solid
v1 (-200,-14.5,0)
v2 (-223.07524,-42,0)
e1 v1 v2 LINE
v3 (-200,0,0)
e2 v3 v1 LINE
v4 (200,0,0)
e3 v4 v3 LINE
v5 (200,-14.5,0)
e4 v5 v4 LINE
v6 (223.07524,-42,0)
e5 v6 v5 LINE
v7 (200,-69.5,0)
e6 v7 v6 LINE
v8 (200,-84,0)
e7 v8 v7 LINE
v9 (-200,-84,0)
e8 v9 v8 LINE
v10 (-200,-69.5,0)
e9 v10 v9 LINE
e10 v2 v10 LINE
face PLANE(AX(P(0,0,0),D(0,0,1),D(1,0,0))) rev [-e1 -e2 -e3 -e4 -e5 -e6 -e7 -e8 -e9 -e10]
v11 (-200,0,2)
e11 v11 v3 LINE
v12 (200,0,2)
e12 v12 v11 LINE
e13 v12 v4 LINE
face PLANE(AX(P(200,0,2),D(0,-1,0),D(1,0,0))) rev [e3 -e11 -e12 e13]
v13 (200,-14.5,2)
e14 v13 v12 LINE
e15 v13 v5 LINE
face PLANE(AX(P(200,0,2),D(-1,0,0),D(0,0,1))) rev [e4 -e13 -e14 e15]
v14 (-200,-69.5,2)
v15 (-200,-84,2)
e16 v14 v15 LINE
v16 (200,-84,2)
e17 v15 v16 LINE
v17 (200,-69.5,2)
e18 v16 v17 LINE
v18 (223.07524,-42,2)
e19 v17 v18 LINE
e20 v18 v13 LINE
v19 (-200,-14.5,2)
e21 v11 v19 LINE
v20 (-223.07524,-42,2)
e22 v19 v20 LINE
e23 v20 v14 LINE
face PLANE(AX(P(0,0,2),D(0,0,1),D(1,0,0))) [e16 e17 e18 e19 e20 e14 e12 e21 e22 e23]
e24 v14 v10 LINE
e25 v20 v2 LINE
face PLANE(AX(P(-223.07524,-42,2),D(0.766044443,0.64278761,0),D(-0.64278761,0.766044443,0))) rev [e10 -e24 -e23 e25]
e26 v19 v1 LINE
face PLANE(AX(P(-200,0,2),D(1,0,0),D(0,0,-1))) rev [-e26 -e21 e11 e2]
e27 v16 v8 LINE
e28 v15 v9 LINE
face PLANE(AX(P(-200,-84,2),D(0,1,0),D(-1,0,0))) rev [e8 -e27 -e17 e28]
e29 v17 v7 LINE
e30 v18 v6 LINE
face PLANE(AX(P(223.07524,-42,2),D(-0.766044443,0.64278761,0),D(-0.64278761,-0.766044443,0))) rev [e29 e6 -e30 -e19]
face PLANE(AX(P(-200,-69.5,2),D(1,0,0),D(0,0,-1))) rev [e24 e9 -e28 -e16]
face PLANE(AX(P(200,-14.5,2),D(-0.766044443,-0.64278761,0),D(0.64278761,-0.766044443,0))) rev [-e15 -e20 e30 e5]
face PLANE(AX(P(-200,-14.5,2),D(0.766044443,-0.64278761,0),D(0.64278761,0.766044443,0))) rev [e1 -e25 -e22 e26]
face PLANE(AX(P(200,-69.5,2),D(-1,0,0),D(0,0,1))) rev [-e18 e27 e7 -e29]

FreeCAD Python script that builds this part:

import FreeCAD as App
import Part
import Sketcher

V = App.Vector
Q = App.Units.Quantity


def add_polygon(sketch, points):
    """Adds a closed chain of lines whose ends are joined by coincident constraints."""
    first, n = sketch.GeometryCount, len(points)
    for a, b in zip(points, points[1:] + points[:1]):
        sketch.addGeometry(Part.LineSegment(App.Vector(*a, 0), App.Vector(*b, 0)), False)
    for i in range(n):
        sketch.addConstraint(Sketcher.Constraint("Coincident", first + i, 2, first + (i + 1) % n, 1))

doc = App.newDocument("Part")
params = doc.addObject("Spreadsheet::Sheet", "Params")
for row, (alias, value) in enumerate([
    ("sketch1_width", "400 mm"),
    ("sketch1_height", "14.5 mm"),
    ("pad1_length", "2 mm"),
], start=1):
    params.set(f"A{row}", alias)
    params.set(f"B{row}", "=" + value)
    params.setAlias(f"B{row}", alias)

body = doc.addObject("PartDesign::Body", "Body")

sketch1 = doc.addObject("Sketcher::SketchObject", "Sketch")
body.addObject(sketch1)
sketch1.AttachmentSupport = (doc.XY_Plane, [""])
sketch1.MapMode = "FlatFace"
add_polygon(sketch1, [(200, 0), (-200, 0), (-200, -14), (-223, -42), (-200, -70), (-200, -84), (200, -84), (200, -70), (223, -42), (200, -14)])
sketch1.addConstraint([
    Sketcher.Constraint("Horizontal", 0),
    Sketcher.Constraint("Vertical", 1),
    Sketcher.Constraint("Vertical", 4),
    Sketcher.Constraint("Horizontal", 5),
    Sketcher.Constraint("Vertical", 6),
    Sketcher.Constraint("Vertical", 9),
    Sketcher.Constraint("Symmetric", 0, 2, 9, 2, -1, 1),
    Sketcher.Constraint("Symmetric", 3, 2, 6, 2, -2),
    Sketcher.Constraint("Symmetric", 2, 2, 7, 2, -2),
    Sketcher.Constraint("Parallel", 2, 7),
    Sketcher.Constraint("Parallel", 3, 8),
    Sketcher.Constraint("Vertical", 1, 2, 3, 2),
    Sketcher.Constraint("Equal", 1, 4),
    Sketcher.Constraint("DistanceX", 0, 2, 0, 1, 400.0),
    Sketcher.Constraint("Angle", 2, Q("-130 deg")),
    Sketcher.Constraint("DistanceY", 1, 2, 1, 1, 14.5),
    Sketcher.Constraint("DistanceY", 2, 2, -1, 1, 42.0),
])
sketch1.setExpression("Constraints[23]", "Params.sketch1_width")
sketch1.setExpression("Constraints[25]", "Params.sketch1_height")
pad1 = doc.addObject("PartDesign::Pad", "Pad")
body.addObject(pad1)
pad1.Profile = sketch1
pad1.setExpression("Length", "Params.pad1_length")

doc.recompute()
